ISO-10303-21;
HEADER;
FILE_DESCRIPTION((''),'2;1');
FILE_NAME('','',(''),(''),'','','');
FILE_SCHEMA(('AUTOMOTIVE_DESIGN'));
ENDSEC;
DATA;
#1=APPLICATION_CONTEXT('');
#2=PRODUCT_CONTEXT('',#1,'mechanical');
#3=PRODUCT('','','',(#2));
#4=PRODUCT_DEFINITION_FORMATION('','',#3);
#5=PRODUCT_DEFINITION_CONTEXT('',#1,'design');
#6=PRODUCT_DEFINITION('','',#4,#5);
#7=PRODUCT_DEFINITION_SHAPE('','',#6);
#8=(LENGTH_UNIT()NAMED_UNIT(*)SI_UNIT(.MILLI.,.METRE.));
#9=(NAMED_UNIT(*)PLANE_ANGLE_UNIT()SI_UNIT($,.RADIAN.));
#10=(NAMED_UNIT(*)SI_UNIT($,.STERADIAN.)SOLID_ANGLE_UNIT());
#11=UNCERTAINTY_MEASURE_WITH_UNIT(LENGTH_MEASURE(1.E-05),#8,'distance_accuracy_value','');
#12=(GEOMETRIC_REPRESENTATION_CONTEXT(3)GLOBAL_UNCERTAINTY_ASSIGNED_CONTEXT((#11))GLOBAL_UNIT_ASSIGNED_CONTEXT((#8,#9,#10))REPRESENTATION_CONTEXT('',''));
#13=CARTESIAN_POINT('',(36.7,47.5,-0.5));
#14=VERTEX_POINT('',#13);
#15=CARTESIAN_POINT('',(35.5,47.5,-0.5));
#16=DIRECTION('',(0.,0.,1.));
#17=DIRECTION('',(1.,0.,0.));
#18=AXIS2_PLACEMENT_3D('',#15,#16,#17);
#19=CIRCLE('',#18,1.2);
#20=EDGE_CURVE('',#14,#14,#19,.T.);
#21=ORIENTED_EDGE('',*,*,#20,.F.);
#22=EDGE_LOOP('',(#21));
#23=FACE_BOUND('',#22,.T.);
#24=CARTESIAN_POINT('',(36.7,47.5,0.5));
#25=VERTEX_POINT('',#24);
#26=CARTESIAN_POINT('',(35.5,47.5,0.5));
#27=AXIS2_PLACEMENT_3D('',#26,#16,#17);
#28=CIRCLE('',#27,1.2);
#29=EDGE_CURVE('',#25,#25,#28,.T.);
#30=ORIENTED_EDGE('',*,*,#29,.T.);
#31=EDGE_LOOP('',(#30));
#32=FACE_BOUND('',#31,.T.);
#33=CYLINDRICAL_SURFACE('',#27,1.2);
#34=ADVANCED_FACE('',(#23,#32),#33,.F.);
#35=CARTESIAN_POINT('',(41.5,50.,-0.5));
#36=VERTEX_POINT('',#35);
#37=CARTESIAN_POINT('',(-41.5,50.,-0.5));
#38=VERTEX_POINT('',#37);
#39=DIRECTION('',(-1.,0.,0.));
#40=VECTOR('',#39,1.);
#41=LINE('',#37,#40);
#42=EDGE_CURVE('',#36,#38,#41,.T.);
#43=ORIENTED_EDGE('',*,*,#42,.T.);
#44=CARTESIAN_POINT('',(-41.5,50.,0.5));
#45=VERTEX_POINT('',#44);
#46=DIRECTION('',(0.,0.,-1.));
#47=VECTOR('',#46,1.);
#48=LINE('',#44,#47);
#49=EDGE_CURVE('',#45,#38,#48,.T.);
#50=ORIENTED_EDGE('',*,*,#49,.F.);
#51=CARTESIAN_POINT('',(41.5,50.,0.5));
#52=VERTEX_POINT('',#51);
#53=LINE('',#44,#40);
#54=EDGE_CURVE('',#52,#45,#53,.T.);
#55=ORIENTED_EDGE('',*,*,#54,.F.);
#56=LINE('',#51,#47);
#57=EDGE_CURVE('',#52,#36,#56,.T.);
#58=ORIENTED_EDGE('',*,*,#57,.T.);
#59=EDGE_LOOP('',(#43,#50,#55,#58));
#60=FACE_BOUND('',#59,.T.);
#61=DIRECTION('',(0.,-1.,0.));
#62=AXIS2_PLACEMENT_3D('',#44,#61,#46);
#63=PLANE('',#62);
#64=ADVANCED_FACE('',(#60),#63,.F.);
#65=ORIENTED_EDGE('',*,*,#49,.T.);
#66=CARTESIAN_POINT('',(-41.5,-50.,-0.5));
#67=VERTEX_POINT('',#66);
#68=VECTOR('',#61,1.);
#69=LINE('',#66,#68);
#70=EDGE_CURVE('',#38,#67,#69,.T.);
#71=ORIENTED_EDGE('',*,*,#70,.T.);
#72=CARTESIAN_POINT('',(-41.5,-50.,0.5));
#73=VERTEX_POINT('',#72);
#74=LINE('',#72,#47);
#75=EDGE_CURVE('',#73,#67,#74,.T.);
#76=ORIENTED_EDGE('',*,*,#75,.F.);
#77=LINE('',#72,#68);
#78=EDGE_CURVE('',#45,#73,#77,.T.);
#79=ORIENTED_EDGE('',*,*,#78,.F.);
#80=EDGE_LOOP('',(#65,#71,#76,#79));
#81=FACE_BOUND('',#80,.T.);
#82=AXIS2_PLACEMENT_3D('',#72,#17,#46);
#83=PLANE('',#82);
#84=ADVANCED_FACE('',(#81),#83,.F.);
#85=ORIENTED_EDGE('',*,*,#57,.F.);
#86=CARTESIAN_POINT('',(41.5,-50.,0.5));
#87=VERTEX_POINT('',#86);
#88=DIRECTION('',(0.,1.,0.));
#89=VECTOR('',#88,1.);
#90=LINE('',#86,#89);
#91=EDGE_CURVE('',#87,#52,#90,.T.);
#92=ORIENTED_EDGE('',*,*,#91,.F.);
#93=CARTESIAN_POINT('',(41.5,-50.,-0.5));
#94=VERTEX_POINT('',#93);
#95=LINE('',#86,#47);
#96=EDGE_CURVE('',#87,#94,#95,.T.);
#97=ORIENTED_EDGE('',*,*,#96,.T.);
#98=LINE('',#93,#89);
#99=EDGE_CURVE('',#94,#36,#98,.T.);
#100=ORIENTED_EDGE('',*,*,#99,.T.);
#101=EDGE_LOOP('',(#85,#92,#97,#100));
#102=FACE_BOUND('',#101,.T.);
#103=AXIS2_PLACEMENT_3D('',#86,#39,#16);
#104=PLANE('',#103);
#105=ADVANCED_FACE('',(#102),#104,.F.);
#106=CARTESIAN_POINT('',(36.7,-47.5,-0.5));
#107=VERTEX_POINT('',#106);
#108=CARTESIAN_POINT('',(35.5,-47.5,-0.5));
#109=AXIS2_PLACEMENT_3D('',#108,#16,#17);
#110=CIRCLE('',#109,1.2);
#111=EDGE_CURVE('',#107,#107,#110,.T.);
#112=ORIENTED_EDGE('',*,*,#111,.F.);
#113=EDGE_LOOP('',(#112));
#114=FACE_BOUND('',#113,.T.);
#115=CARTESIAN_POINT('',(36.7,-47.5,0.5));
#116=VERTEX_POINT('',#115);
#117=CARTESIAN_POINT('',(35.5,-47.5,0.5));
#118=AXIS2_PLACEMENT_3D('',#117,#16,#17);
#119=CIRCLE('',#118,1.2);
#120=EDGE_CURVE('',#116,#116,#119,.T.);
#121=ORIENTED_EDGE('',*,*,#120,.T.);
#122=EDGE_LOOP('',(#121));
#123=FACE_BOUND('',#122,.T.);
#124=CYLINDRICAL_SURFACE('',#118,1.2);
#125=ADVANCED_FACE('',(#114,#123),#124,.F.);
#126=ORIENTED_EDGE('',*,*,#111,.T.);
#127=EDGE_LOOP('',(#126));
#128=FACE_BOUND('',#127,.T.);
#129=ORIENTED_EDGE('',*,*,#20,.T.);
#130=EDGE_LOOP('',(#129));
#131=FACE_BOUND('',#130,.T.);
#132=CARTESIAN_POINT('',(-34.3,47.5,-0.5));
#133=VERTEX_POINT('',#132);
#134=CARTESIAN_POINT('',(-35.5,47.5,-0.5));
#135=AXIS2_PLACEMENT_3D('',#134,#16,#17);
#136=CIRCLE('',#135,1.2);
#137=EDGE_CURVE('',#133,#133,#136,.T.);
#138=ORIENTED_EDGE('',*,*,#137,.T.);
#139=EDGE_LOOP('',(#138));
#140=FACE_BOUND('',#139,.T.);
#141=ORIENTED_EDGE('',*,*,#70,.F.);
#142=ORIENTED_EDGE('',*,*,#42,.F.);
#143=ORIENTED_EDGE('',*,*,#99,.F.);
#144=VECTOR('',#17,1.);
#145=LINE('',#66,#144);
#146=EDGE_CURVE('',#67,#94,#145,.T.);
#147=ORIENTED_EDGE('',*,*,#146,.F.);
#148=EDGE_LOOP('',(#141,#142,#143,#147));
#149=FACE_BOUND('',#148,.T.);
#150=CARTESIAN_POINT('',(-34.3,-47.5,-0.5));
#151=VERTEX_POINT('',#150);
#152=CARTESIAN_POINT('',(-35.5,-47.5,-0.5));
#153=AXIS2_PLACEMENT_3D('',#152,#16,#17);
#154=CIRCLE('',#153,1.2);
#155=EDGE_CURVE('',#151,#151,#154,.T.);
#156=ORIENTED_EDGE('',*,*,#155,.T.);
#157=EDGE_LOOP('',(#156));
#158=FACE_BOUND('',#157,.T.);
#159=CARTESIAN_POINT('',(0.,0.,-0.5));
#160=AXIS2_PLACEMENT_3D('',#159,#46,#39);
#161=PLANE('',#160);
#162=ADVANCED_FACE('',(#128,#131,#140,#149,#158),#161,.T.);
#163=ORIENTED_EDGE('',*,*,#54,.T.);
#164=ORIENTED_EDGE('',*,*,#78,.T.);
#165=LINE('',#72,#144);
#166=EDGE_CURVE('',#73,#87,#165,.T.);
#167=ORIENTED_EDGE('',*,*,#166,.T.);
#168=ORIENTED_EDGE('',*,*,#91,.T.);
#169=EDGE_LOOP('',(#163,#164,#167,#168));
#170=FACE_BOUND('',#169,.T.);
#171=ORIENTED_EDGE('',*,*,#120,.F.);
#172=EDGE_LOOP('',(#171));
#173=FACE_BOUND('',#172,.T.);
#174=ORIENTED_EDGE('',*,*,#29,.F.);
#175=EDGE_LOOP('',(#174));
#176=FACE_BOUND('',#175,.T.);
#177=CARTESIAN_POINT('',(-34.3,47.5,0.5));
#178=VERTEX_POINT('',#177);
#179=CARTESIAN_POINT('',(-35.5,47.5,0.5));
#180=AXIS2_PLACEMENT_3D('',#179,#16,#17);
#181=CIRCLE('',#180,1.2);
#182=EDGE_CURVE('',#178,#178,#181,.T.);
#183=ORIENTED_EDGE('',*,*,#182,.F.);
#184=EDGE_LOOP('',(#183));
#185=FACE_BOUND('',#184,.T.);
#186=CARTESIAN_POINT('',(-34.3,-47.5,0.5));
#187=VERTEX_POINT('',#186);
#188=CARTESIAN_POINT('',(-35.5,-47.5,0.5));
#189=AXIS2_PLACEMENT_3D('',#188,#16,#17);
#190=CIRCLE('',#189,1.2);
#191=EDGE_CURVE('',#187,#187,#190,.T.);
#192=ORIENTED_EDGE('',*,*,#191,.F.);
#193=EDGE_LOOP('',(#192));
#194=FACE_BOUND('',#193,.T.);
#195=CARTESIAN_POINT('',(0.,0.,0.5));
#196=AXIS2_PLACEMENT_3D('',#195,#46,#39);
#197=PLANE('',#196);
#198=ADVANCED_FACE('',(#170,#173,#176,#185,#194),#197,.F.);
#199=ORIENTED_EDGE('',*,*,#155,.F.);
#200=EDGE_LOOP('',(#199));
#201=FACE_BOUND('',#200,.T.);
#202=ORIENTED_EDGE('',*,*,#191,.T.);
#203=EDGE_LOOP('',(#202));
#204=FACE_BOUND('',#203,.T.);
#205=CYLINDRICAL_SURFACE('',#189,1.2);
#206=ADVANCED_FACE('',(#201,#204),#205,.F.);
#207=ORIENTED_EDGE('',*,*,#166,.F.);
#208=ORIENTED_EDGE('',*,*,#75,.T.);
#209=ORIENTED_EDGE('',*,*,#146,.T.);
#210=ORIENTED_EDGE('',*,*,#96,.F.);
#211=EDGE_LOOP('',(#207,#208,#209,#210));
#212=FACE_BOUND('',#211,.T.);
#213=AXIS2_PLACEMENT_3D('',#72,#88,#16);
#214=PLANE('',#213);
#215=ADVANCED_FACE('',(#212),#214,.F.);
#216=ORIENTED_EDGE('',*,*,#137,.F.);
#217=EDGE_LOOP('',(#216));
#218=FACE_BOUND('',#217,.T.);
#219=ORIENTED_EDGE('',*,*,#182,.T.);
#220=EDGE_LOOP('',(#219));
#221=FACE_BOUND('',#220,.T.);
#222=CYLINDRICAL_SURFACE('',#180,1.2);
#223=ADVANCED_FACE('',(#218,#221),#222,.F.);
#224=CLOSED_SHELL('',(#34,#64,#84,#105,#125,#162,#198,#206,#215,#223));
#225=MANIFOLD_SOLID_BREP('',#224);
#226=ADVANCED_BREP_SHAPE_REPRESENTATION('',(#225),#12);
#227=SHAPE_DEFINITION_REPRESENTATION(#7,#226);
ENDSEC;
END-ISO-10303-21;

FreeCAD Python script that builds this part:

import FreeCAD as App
import Part
import Sketcher
from FreeCAD import Vector


def add_polygon(sketch, points):
    """Adds a closed chain of lines whose ends are joined by coincident constraints."""
    first, n = sketch.GeometryCount, len(points)
    for a, b in zip(points, points[1:] + points[:1]):
        sketch.addGeometry(Part.LineSegment(App.Vector(*a, 0), App.Vector(*b, 0)), False)
    for i in range(n):
        sketch.addConstraint(Sketcher.Constraint("Coincident", first + i, 2, first + (i + 1) % n, 1))

doc = App.newDocument("Part")
body = doc.addObject("PartDesign::Body", "Body")

sketch1 = body.newObject("Sketcher::SketchObject", "Sketch")
sketch1.AttachmentSupport = (doc.getObject("XY_Plane"), [""])
sketch1.MapMode = "FlatFace"
add_polygon(sketch1, [(-41.5, 50), (-41.5, -50), (41.5, -50), (41.5, 50)])
sketch1.addConstraint([
    Sketcher.Constraint("Vertical", 0),
    Sketcher.Constraint("Horizontal", 1),
    Sketcher.Constraint("Vertical", 2),
    Sketcher.Constraint("Horizontal", 3),
    Sketcher.Constraint("Symmetric", 0, 2, 2, 2, -1, 1),
    Sketcher.Constraint("DistanceX", 1, 1, 1, 2, 83.0),
    Sketcher.Constraint("DistanceY", 0, 2, 0, 1, 100.0),
])
pad1 = body.newObject("PartDesign::Pad", "Pad")
pad1.Profile = sketch1
pad1.Length = 1
pad1.Midplane = True

sketch2 = body.newObject("Sketcher::SketchObject", "Sketch001")
sketch2.AttachmentSupport = (doc.getObject("XY_Plane"), [""])
sketch2.MapMode = "FlatFace"
sketch2.AttachmentOffset = App.Placement(Vector(0, 0, 0.5), App.Rotation())
sketch2.addGeometry([
    Part.Circle(Vector(-35.5, 47.5, 0), Vector(0, 0, 1), 1.2),
    Part.Circle(Vector(35.5, 47.5, 0), Vector(0, 0, 1), 1.2),
    Part.Circle(Vector(-35.5, -47.5, 0), Vector(0, 0, 1), 1.2),
    Part.Circle(Vector(35.5, -47.5, 0), Vector(0, 0, 1), 1.2),
], False)
sketch2.addConstraint([
    Sketcher.Constraint("Equal", 0, 1),
    Sketcher.Constraint("Equal", 1, 2),
    Sketcher.Constraint("Equal", 2, 3),
    Sketcher.Constraint("Symmetric", 1, 3, 2, 3, -1, 1),
    Sketcher.Constraint("Symmetric", 0, 3, 3, 3, -1, 1),
    Sketcher.Constraint("Symmetric", 0, 3, 1, 3, -2),
    Sketcher.Constraint("Diameter", 0, 2.4),
    Sketcher.Constraint("DistanceX", 0, 3, 1, 3, 71.0),
    Sketcher.Constraint("DistanceY", 2, 3, 0, 3, 95.0),
])
doc.recompute()
hole = body.newObject("PartDesign::Hole", "Hole")
hole.Profile = sketch2
hole.ThreadType = "None"
hole.Diameter = 2.4
hole.DepthType = "ThroughAll"

doc.recompute()
